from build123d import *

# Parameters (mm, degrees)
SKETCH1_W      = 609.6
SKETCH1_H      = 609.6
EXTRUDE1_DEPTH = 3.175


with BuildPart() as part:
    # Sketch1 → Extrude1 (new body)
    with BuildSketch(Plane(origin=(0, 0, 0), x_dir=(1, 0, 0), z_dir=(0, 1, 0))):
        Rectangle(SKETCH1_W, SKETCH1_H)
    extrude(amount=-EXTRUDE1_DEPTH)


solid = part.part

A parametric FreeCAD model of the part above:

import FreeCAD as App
import Part
import Sketcher
Q = App.Units.Quantity


def add_polygon(sketch, points):
    """Adds a closed chain of lines whose ends are joined by coincident constraints."""
    first, n = sketch.GeometryCount, len(points)
    for a, b in zip(points, points[1:] + points[:1]):
        sketch.addGeometry(Part.LineSegment(App.Vector(*a, 0), App.Vector(*b, 0)), False)
    for i in range(n):
        sketch.addConstraint(Sketcher.Constraint("Coincident", first + i, 2, first + (i + 1) % n, 1))

doc = App.newDocument("Part")
body = doc.addObject("PartDesign::Body", "Body")

sketch1 = body.newObject("Sketcher::SketchObject", "Sketch")
sketch1.AttachmentSupport = (doc.getObject("XZ_Plane"), [""])
sketch1.MapMode = "FlatFace"
add_polygon(sketch1, [(-304.8, -304.8), (-304.8, 304.8), (304.8, 304.8), (304.8, -304.8)])
sketch1.addConstraint([
    Sketcher.Constraint("Vertical", 0),
    Sketcher.Constraint("Horizontal", 1),
    Sketcher.Constraint("Vertical", 2),
    Sketcher.Constraint("Horizontal", 3),
    Sketcher.Constraint("Symmetric", 0, 2, 2, 2, -1, 1),
    Sketcher.Constraint("Equal", 3, 0),
    Sketcher.Constraint("DistanceX", 1, 1, 1, 2, Q("24 in")),
])
pad1 = body.newObject("PartDesign::Pad", "Pad")
pad1.Profile = sketch1
pad1.Length = Q("0.125 in")

doc.recompute()
